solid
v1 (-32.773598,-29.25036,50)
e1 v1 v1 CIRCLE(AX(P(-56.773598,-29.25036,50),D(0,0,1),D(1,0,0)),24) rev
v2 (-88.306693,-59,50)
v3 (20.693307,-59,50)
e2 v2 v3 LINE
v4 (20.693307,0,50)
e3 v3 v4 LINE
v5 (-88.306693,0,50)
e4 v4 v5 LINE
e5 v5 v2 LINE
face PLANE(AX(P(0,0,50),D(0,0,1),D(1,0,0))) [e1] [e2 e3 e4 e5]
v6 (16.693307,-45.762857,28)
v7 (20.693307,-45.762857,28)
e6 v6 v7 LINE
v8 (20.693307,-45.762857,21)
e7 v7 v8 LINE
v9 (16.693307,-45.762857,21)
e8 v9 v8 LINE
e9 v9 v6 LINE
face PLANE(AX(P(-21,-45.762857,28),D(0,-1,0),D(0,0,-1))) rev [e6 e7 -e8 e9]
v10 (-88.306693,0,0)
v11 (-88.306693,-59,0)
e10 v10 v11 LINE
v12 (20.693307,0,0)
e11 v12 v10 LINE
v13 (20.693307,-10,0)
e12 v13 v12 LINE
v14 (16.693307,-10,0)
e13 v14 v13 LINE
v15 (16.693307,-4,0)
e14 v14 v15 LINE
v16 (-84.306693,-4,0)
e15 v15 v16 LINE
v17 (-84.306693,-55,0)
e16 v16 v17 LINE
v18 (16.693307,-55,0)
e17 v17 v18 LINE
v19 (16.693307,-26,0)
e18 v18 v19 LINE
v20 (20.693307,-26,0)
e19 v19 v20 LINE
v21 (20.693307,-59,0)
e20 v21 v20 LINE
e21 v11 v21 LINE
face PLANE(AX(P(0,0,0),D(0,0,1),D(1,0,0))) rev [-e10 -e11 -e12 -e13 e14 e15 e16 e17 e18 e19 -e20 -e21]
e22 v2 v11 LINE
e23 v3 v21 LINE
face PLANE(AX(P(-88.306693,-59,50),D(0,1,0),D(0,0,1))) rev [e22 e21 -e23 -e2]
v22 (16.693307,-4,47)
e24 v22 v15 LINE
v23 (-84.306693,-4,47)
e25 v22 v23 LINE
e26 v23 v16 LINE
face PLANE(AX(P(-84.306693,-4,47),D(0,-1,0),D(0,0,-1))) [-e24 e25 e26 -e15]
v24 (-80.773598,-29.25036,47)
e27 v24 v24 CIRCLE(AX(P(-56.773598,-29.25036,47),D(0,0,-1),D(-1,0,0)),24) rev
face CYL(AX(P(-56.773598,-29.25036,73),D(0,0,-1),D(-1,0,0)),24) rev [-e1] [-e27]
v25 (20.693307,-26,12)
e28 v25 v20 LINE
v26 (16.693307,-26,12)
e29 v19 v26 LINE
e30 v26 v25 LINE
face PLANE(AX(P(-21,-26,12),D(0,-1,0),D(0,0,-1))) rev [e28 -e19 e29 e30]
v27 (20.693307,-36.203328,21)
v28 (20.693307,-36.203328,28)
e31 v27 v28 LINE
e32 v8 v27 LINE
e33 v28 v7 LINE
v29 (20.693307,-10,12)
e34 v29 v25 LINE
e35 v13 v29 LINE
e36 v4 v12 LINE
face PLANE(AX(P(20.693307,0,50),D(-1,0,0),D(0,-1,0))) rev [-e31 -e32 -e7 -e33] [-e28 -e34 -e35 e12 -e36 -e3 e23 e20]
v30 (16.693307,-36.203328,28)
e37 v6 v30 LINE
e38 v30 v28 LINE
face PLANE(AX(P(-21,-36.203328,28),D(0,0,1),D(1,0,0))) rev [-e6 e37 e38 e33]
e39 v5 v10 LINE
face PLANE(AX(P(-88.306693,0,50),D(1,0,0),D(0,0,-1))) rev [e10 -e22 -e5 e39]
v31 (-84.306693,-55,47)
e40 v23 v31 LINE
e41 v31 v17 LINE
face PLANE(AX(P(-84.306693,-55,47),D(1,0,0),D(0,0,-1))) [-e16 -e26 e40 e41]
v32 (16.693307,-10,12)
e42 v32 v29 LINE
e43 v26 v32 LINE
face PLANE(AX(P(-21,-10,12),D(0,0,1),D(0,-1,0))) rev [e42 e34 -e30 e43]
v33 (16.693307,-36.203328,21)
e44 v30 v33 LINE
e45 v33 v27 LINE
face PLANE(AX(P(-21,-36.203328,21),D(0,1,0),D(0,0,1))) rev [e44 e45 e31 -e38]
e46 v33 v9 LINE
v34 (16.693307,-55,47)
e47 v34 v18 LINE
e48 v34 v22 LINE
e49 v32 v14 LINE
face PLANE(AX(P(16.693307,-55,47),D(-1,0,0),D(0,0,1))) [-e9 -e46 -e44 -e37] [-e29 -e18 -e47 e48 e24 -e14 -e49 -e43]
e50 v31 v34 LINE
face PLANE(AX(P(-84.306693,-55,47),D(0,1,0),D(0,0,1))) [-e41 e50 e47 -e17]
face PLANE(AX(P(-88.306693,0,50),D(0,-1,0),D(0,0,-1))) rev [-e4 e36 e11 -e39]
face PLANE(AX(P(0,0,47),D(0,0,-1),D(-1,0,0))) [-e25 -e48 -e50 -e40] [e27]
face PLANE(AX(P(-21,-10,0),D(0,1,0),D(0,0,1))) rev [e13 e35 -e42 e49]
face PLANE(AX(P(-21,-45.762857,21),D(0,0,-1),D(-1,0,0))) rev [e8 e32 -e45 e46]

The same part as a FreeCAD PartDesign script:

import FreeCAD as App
import Part
import Sketcher
from FreeCAD import Vector
Q = App.Units.Quantity

doc = App.newDocument("Part")
body = doc.addObject("PartDesign::Body", "Body")

# Sketch on XY plane
sketch1 = body.newObject("Sketcher::SketchObject", "Sketch")
sketch1.AttachmentSupport = (doc.getObject("XY_Plane"), [""])
sketch1.MapMode = "FlatFace"
sketch1.addGeometry([
    Part.LineSegment(Vector(-88.306693, 0, 0), Vector(-88.306693, -59, 0)),
    Part.LineSegment(Vector(-88.306693, -59, 0), Vector(20.693307, -59, 0)),
    Part.LineSegment(Vector(20.693307, -59, 0), Vector(20.693307, 0, 0)),
    Part.LineSegment(Vector(20.693307, 0, 0), Vector(-88.306693, 0, 0)),
], False)
sketch1.addConstraint([
    Sketcher.Constraint("Coincident", 0, 2, 1, 1),
    Sketcher.Constraint("Coincident", 1, 2, 2, 1),
    Sketcher.Constraint("Coincident", 2, 2, 3, 1),
    Sketcher.Constraint("Coincident", 3, 2, 0, 1),
    Sketcher.Constraint("Vertical", 0),
    Sketcher.Constraint("Horizontal", 1),
    Sketcher.Constraint("Vertical", 2),
    Sketcher.Constraint("Horizontal", 3),
    Sketcher.Constraint("PointOnObject", 2, 2, -1),
    Sketcher.Constraint("DistanceX", 1, 1, 1, 2, Q("109 mm")),
    Sketcher.Constraint("DistanceY", 0, 2, 0, 1, Q("59 mm")),
    Sketcher.Constraint("DistanceX", 0, 2, -1, 1, Q("88.306693 mm")),
])
pad1 = body.newObject("PartDesign::Pad", "Pad")
pad1.Profile = sketch1
pad1.Length = 50

# Sketch on XY plane
sketch2 = body.newObject("Sketcher::SketchObject", "Sketch001")
sketch2.AttachmentSupport = (doc.getObject("XY_Plane"), [""])
sketch2.MapMode = "FlatFace"
sketch2.addGeometry([
    Part.LineSegment(Vector(-84.306693, -4, 0), Vector(-84.306693, -55, 0)),
    Part.LineSegment(Vector(-84.306693, -55, 0), Vector(16.693307, -55, 0)),
    Part.LineSegment(Vector(16.693307, -55, 0), Vector(16.693307, -4, 0)),
    Part.LineSegment(Vector(16.693307, -4, 0), Vector(-84.306693, -4, 0)),
], False)
sketch2.addConstraint([
    Sketcher.Constraint("Coincident", 0, 2, 1, 1),
    Sketcher.Constraint("Coincident", 1, 2, 2, 1),
    Sketcher.Constraint("Coincident", 2, 2, 3, 1),
    Sketcher.Constraint("Coincident", 3, 2, 0, 1),
    Sketcher.Constraint("Vertical", 0),
    Sketcher.Constraint("Horizontal", 1),
    Sketcher.Constraint("Vertical", 2),
    Sketcher.Constraint("Horizontal", 3),
    Sketcher.Constraint("DistanceX", 1, 1, 1, 2, Q("101 mm")),
    Sketcher.Constraint("DistanceY", 0, 2, 0, 1, Q("51 mm")),
    Sketcher.Constraint("DistanceY", 0, 2, -1, 1, Q("55 mm")),
    Sketcher.Constraint("DistanceX", 0, 2, -1, 1, Q("84.306693 mm")),
])
pocket1 = body.newObject("PartDesign::Pocket", "Pocket")
pocket1.Profile = sketch2
pocket1.Length = 47
pocket1.Reversed = True

# Sketch on YZ plane
sketch3 = body.newObject("Sketcher::SketchObject", "Sketch002")
sketch3.AttachmentSupport = (doc.getObject("YZ_Plane"), [""])
sketch3.MapMode = "FlatFace"
sketch3.addGeometry([
    Part.LineSegment(Vector(-36.203328, 28, 0), Vector(-45.762857, 28, 0)),  # 0
    Part.LineSegment(Vector(-45.762857, 28, 0), Vector(-45.762857, 21, 0)),  # 1
    Part.LineSegment(Vector(-45.762857, 21, 0), Vector(-36.203328, 21, 0)),  # 2
    Part.LineSegment(Vector(-36.203328, 21, 0), Vector(-36.203328, 28, 0)),  # 3
    Part.LineSegment(Vector(-10, 12, 0), Vector(-26, 12, 0)),  # 4
    Part.LineSegment(Vector(-26, 12, 0), Vector(-26, 0, 0)),  # 5
    Part.LineSegment(Vector(-26, 0, 0), Vector(-10, 0, 0)),  # 6
    Part.LineSegment(Vector(-10, 0, 0), Vector(-10, 12, 0)),  # 7
], False)
sketch3.addConstraint([
    Sketcher.Constraint("Coincident", 0, 2, 1, 1),
    Sketcher.Constraint("Coincident", 1, 2, 2, 1),
    Sketcher.Constraint("Coincident", 2, 2, 3, 1),
    Sketcher.Constraint("Coincident", 3, 2, 0, 1),
    Sketcher.Constraint("Coincident", 4, 2, 5, 1),
    Sketcher.Constraint("Coincident", 5, 2, 6, 1),
    Sketcher.Constraint("Coincident", 6, 2, 7, 1),
    Sketcher.Constraint("Coincident", 7, 2, 4, 1),
    Sketcher.Constraint("Horizontal", 0),
    Sketcher.Constraint("Vertical", 1),
    Sketcher.Constraint("Horizontal", 2),
    Sketcher.Constraint("Vertical", 3),
    Sketcher.Constraint("Horizontal", 4),
    Sketcher.Constraint("Vertical", 5),
    Sketcher.Constraint("Horizontal", 6),
    Sketcher.Constraint("Vertical", 7),
    Sketcher.Constraint("PointOnObject", 5, 2, -1),
    Sketcher.Constraint("DistanceX", 4, 2, 4, 1, Q("16 mm")),
    Sketcher.Constraint("DistanceY", 1, 2, 1, 1, Q("7 mm")),
    Sketcher.Constraint("DistanceY", 5, 2, 5, 1, Q("12 mm")),
    Sketcher.Constraint("DistanceY", -1, 1, 0, 2, Q("28 mm")),
    Sketcher.Constraint("DistanceX", 4, 2, -1, 1, Q("26 mm")),
    Sketcher.Constraint("DistanceX", 0, 2, 0, 1, Q("9.559529 mm")),
    Sketcher.Constraint("DistanceX", 2, 2, -1, 1, Q("36.203328 mm")),
])
pocket2 = body.newObject("PartDesign::Pocket", "Pocket001")
pocket2.Profile = sketch3
pocket2.Type = "TwoLengths"
pocket2.Length = 118.384292
pocket2.Length2 = 21
pocket2.Reversed = True

# Sketch on XY plane
sketch4 = body.newObject("Sketcher::SketchObject", "Sketch003")
sketch4.AttachmentSupport = (doc.getObject("XY_Plane"), [""])
sketch4.MapMode = "FlatFace"
sketch4.addGeometry(Part.Circle(Vector(-56.773598, -29.25036, 0), Vector(0, 0, 1), 24), False)
sketch4.addConstraint([
    Sketcher.Constraint("Diameter", 0, Q("48 mm")),
    Sketcher.Constraint("DistanceY", 0, 3, -1, 1, Q("29.25036 mm")),
    Sketcher.Constraint("DistanceX", 0, 3, -1, 1, Q("56.773598 mm")),
])
pocket3 = body.newObject("PartDesign::Pocket", "Pocket002")
pocket3.Profile = sketch4
pocket3.Length = 73
pocket3.Reversed = True

doc.recompute()
